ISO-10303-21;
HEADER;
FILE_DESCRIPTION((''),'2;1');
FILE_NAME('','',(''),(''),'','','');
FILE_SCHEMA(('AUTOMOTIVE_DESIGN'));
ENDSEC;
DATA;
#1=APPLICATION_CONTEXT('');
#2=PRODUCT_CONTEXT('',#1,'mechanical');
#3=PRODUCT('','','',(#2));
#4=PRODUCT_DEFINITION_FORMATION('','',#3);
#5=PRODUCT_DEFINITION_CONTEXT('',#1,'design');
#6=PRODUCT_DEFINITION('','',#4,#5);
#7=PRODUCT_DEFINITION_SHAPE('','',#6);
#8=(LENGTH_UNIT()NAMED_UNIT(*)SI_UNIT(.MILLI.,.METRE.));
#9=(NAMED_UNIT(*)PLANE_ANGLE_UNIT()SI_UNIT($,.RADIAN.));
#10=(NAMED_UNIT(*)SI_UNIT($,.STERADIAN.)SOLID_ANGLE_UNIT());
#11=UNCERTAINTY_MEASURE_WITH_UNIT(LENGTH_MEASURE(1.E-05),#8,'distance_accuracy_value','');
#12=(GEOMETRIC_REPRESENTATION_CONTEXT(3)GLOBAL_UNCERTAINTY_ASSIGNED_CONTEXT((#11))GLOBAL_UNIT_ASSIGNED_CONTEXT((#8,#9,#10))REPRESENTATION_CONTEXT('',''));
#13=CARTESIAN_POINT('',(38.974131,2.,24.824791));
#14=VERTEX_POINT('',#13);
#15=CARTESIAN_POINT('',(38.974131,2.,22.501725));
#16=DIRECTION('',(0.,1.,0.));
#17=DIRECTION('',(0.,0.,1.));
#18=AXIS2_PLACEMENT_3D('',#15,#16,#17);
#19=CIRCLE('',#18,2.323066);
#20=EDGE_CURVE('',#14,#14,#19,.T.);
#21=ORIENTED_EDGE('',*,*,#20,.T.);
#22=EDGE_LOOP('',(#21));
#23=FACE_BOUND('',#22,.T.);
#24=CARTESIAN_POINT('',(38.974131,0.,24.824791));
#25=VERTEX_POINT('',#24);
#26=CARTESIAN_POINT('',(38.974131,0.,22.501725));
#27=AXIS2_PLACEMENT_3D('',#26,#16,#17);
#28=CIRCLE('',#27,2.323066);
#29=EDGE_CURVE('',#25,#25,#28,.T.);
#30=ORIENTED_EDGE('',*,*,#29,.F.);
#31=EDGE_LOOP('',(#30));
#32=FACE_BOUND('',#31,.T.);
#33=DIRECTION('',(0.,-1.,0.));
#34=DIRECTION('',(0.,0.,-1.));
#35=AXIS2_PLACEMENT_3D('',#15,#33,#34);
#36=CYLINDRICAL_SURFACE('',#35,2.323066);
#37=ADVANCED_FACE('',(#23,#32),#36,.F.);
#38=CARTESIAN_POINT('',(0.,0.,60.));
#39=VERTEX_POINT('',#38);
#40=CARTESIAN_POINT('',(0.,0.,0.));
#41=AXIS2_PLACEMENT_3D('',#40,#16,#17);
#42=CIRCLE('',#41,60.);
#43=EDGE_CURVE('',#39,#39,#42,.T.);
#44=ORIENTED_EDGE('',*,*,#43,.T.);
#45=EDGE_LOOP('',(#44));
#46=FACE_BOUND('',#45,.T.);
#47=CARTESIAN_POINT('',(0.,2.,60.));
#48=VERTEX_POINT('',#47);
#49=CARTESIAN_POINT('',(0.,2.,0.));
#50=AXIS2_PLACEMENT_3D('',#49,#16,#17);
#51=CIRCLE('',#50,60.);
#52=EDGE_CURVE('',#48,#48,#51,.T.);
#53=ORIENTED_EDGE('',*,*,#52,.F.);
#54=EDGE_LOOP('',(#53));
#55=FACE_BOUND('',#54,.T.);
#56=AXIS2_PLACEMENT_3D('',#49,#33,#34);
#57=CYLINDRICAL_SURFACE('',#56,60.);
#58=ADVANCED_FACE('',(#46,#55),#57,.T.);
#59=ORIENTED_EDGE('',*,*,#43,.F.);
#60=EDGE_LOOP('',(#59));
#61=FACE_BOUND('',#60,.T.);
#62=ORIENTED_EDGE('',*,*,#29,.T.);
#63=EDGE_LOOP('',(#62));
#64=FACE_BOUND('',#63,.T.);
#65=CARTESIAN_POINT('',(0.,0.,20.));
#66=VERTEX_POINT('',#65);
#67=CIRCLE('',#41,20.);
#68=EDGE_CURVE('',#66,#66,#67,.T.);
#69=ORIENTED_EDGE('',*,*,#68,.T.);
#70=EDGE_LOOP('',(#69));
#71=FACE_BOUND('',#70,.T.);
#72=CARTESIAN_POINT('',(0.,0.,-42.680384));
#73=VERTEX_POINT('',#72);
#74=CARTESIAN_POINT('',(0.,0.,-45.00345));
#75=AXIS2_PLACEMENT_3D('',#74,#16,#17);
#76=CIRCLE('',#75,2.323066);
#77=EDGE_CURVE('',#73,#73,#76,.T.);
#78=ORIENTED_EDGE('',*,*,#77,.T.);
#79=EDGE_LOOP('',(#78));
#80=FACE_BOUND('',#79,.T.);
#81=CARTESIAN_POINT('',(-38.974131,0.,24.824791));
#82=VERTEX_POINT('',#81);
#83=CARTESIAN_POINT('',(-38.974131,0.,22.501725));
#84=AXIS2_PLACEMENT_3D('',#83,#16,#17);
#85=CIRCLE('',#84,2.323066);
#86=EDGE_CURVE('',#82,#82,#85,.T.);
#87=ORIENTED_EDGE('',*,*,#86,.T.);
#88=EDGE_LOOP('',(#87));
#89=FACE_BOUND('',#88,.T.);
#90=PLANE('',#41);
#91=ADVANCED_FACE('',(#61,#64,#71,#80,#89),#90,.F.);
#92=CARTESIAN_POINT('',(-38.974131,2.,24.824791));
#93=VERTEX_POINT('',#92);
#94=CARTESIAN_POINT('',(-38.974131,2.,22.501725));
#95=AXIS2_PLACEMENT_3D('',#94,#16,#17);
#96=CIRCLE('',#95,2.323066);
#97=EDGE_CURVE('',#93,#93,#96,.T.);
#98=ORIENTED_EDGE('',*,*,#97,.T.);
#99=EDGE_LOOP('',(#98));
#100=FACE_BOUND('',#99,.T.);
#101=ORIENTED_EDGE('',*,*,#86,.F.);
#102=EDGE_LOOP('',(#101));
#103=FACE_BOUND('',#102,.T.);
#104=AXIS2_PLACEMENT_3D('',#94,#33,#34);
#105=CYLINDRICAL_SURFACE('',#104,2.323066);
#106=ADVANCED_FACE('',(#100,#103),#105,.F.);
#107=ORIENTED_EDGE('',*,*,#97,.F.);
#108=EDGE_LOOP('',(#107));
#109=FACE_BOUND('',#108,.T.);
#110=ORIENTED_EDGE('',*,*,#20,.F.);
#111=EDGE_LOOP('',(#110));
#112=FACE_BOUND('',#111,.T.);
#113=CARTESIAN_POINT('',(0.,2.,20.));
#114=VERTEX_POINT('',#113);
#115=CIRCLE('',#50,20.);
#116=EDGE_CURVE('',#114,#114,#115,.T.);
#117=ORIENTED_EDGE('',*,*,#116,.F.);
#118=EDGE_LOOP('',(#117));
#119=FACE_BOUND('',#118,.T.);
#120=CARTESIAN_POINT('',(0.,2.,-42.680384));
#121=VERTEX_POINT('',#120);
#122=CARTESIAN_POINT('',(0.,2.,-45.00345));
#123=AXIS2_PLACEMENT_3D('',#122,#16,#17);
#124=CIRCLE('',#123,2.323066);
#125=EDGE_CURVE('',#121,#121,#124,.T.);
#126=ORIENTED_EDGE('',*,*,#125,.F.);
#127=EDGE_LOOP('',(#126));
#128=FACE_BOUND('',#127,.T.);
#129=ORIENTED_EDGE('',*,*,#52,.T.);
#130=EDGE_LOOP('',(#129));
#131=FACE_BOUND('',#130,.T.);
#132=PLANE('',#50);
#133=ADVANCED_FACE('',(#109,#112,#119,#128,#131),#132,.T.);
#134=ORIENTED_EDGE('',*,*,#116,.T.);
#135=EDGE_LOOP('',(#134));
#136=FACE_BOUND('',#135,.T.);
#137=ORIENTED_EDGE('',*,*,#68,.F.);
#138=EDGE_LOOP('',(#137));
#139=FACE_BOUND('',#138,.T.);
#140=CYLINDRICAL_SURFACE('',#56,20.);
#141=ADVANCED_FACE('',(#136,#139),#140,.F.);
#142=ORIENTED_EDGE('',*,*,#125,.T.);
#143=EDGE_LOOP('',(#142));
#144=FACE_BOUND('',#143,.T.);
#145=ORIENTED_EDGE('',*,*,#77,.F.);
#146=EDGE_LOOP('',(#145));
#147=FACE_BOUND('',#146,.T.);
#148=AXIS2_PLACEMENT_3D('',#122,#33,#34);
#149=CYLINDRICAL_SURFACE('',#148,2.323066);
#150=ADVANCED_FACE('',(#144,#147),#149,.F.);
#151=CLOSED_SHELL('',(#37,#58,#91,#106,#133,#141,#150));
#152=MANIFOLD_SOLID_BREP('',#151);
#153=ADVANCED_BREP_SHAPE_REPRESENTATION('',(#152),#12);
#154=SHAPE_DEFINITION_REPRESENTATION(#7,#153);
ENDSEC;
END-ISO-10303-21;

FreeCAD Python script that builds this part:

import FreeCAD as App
import Part
import Sketcher
from FreeCAD import Vector

doc = App.newDocument("Part")
body = doc.addObject("PartDesign::Body", "Body")

# Sketch on XZ plane
sketch1 = body.newObject("Sketcher::SketchObject", "Sketch")
sketch1.AttachmentSupport = (doc.getObject("XZ_Plane"), [""])
sketch1.MapMode = "FlatFace"
sketch1.addGeometry([
    Part.Circle(Vector(0, 0, 0), Vector(0, 0, 1), 60),  # 0
    Part.Circle(Vector(0, -45.00345, 0), Vector(0, 0, 1), 2.323066),  # 1
    Part.Circle(Vector(-38.974131, 22.501725, 0), Vector(0, 0, 1), 2.323066),  # 2
    Part.Circle(Vector(0, 0, 0), Vector(0, 0, 1), 20),  # 3
    Part.Circle(Vector(38.974131, 22.501725, 0), Vector(0, 0, 1), 2.323066),  # 4
], False)
sketch1.addConstraint([
    Sketcher.Constraint("Coincident", 0, 3, -1, 1),
    Sketcher.Constraint("Coincident", 3, 3, -1, 1),
    Sketcher.Constraint("Equal", 1, 2),
    Sketcher.Constraint("Equal", 2, 4),
    Sketcher.Constraint("Symmetric", 2, 3, 4, 3, -2),
    Sketcher.Constraint("PointOnObject", 1, 3, -2),
    Sketcher.Constraint("Diameter", 0, 120.0),
    Sketcher.Constraint("Diameter", 3, 40.0),
    Sketcher.Constraint("Diameter", 1, 4.646132),
    Sketcher.Constraint("DistanceY", 1, 3, -1, 1, 45.00345),
    Sketcher.Constraint("DistanceX", 2, 3, -1, 1, 38.974131),
    Sketcher.Constraint("DistanceY", -1, 1, 2, 3, 22.501725),
])
pad1 = body.newObject("PartDesign::Pad", "Pad")
pad1.Profile = sketch1
pad1.Length = 2
pad1.Reversed = True

doc.recompute()
